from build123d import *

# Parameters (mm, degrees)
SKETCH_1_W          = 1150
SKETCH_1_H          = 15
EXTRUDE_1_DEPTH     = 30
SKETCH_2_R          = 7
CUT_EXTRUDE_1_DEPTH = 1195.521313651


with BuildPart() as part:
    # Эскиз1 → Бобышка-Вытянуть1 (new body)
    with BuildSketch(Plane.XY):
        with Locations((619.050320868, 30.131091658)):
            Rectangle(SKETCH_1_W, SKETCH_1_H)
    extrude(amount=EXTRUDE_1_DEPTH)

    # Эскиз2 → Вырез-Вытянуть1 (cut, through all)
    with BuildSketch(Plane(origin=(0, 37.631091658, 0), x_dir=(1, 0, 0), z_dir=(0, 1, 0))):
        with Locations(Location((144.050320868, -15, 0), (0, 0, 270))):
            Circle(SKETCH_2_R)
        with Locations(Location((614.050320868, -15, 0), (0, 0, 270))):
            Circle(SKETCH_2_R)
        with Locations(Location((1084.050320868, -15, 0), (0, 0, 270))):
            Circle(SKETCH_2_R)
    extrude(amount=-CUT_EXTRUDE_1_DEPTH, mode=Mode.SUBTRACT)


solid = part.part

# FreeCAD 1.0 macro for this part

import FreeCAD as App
import Part
import Sketcher
from FreeCAD import Vector


def add_polygon(sketch, points):
    """Adds a closed chain of lines whose ends are joined by coincident constraints."""
    first, n = sketch.GeometryCount, len(points)
    for a, b in zip(points, points[1:] + points[:1]):
        sketch.addGeometry(Part.LineSegment(App.Vector(*a, 0), App.Vector(*b, 0)), False)
    for i in range(n):
        sketch.addConstraint(Sketcher.Constraint("Coincident", first + i, 2, first + (i + 1) % n, 1))

doc = App.newDocument("Part")
body = doc.addObject("PartDesign::Body", "Body")

# Sketch on XY plane
sketch1 = body.newObject("Sketcher::SketchObject", "Sketch")
sketch1.AttachmentSupport = (doc.getObject("XY_Plane"), [""])
sketch1.MapMode = "FlatFace"
add_polygon(sketch1, [(44.050321, 37.631092), (44.050321, 22.631092), (1194.050321, 22.631092), (1194.050321, 37.631092)])  # lines 0-3
sketch1.addConstraint([
    Sketcher.Constraint("Vertical", 0),
    Sketcher.Constraint("Horizontal", 1),
    Sketcher.Constraint("Vertical", 2),
    Sketcher.Constraint("Horizontal", 3),
    Sketcher.Constraint("DistanceX", 1, 1, 1, 2, 1150.0),
    Sketcher.Constraint("DistanceY", 0, 2, 0, 1, 15.0),
    Sketcher.Constraint("DistanceX", -1, 1, 0, 2, 44.050321),
    Sketcher.Constraint("DistanceY", -1, 1, 0, 2, 22.631092),
])
pad1 = body.newObject("PartDesign::Pad", "Pad")
pad1.Profile = sketch1
pad1.Length = 30

# Sketch on XZ plane
sketch2 = body.newObject("Sketcher::SketchObject", "Sketch001")
sketch2.AttachmentSupport = (doc.getObject("XZ_Plane"), [""])
sketch2.MapMode = "FlatFace"
sketch2.AttachmentOffset = App.Placement(Vector(0, 0, -37.631092), App.Rotation())
sketch2.addGeometry([
    Part.Circle(Vector(144.050321, 15, 0), Vector(0, 0, 1), 7),
    Part.Circle(Vector(614.050321, 15, 0), Vector(0, 0, 1), 7),
    Part.Circle(Vector(1084.050321, 15, 0), Vector(0, 0, 1), 7),
], False)
sketch2.addConstraint([
    Sketcher.Constraint("Equal", 0, 1),
    Sketcher.Constraint("Equal", 1, 2),
    Sketcher.Constraint("Horizontal", 0, 3, 1, 3),
    Sketcher.Constraint("Horizontal", 1, 3, 2, 3),
    Sketcher.Constraint("Diameter", 0, 14.0),
    Sketcher.Constraint("DistanceY", -1, 1, 0, 3, 15.0),
    Sketcher.Constraint("DistanceX", 0, 3, 1, 3, 470.0),
    Sketcher.Constraint("DistanceX", 1, 3, 2, 3, 470.0),
    Sketcher.Constraint("DistanceX", -1, 1, 0, 3, 144.050321),
])
pocket1 = body.newObject("PartDesign::Pocket", "Pocket")
pocket1.Profile = sketch2
pocket1.Type = "ThroughAll"
pocket1.Reversed = True

doc.recompute()
